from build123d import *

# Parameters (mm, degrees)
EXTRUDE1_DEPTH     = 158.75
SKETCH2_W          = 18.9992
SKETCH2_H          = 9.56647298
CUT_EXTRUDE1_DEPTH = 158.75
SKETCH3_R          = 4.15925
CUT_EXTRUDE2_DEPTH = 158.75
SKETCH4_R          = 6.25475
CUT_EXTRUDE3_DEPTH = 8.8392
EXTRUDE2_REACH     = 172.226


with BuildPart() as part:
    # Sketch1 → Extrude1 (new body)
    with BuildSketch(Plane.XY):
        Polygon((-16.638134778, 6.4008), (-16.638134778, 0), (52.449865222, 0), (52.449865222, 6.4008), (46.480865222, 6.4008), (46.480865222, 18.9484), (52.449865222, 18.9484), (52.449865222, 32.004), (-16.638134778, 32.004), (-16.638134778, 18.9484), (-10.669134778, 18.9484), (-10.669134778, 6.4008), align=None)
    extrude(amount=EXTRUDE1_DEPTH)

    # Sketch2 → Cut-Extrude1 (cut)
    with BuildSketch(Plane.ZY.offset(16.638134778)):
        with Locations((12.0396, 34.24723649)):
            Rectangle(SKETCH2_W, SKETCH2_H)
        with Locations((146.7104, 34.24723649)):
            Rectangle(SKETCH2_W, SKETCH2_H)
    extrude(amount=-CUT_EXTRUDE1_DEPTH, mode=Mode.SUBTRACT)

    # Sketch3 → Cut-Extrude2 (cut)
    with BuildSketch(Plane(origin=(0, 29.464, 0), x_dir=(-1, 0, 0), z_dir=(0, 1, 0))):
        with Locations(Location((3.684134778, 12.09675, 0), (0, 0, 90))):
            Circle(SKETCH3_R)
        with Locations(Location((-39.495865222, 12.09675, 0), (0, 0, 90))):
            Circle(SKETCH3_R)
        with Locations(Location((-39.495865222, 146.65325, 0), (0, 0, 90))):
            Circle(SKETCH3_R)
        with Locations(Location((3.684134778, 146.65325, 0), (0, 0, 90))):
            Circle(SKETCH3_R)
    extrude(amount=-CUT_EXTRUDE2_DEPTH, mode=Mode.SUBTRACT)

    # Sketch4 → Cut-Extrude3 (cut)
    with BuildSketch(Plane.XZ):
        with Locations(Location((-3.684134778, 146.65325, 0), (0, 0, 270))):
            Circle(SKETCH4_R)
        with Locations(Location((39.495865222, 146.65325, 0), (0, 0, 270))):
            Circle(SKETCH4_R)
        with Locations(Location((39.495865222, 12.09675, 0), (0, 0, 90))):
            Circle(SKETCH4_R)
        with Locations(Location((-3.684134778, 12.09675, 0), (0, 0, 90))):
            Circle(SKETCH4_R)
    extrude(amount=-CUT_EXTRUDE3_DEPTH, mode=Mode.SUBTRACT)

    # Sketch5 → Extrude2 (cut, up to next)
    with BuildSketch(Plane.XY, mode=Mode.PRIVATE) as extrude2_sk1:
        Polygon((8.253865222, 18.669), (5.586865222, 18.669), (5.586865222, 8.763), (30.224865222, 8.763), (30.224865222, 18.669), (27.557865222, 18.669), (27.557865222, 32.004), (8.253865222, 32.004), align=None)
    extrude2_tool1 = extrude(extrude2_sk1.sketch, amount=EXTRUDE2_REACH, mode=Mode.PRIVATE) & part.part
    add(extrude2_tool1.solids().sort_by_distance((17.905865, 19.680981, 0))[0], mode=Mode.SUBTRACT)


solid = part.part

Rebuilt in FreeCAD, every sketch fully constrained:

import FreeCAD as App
import Part
import Sketcher

V = App.Vector
Q = App.Units.Quantity

doc = App.newDocument("Part")
body = doc.addObject("PartDesign::Body", "Body")

sketch1 = doc.addObject("Sketcher::SketchObject", "Sketch")
body.addObject(sketch1)
sketch1.AttachmentSupport = (doc.XY_Plane, [""])
sketch1.MapMode = "FlatFace"
sketch1.addGeometry(Part.LineSegment(V(-17, 6, 0), V(-17, 0, 0)), False)
sketch1.addGeometry(Part.LineSegment(V(-17, 0, 0), V(52, 0, 0)), False)
sketch1.addGeometry(Part.LineSegment(V(52, 0, 0), V(52, 6, 0)), False)
sketch1.addGeometry(Part.LineSegment(V(52, 6, 0), V(46, 6, 0)), False)
sketch1.addGeometry(Part.LineSegment(V(46, 6, 0), V(46, 19, 0)), False)
sketch1.addGeometry(Part.LineSegment(V(46, 19, 0), V(52, 19, 0)), False)
sketch1.addGeometry(Part.LineSegment(V(52, 19, 0), V(52, 32, 0)), False)
sketch1.addGeometry(Part.LineSegment(V(52, 32, 0), V(-17, 32, 0)), False)
sketch1.addGeometry(Part.LineSegment(V(-17, 32, 0), V(-17, 19, 0)), False)
sketch1.addGeometry(Part.LineSegment(V(-17, 19, 0), V(-11, 19, 0)), False)
sketch1.addGeometry(Part.LineSegment(V(-11, 19, 0), V(-11, 6, 0)), False)
sketch1.addGeometry(Part.LineSegment(V(-11, 6, 0), V(-17, 6, 0)), False)
sketch1.addConstraint(Sketcher.Constraint("Coincident", 0, 2, 1, 1))
sketch1.addConstraint(Sketcher.Constraint("Coincident", 1, 2, 2, 1))
sketch1.addConstraint(Sketcher.Constraint("Coincident", 2, 2, 3, 1))
sketch1.addConstraint(Sketcher.Constraint("Coincident", 3, 2, 4, 1))
sketch1.addConstraint(Sketcher.Constraint("Coincident", 4, 2, 5, 1))
sketch1.addConstraint(Sketcher.Constraint("Coincident", 5, 2, 6, 1))
sketch1.addConstraint(Sketcher.Constraint("Coincident", 6, 2, 7, 1))
sketch1.addConstraint(Sketcher.Constraint("Coincident", 7, 2, 8, 1))
sketch1.addConstraint(Sketcher.Constraint("Coincident", 8, 2, 9, 1))
sketch1.addConstraint(Sketcher.Constraint("Coincident", 9, 2, 10, 1))
sketch1.addConstraint(Sketcher.Constraint("Coincident", 10, 2, 11, 1))
sketch1.addConstraint(Sketcher.Constraint("Coincident", 11, 2, 0, 1))
sketch1.addConstraint(Sketcher.Constraint("Vertical", 0))
sketch1.addConstraint(Sketcher.Constraint("Horizontal", 1))
sketch1.addConstraint(Sketcher.Constraint("Vertical", 2))
sketch1.addConstraint(Sketcher.Constraint("Horizontal", 3))
sketch1.addConstraint(Sketcher.Constraint("Vertical", 4))
sketch1.addConstraint(Sketcher.Constraint("Horizontal", 5))
sketch1.addConstraint(Sketcher.Constraint("Vertical", 6))
sketch1.addConstraint(Sketcher.Constraint("Horizontal", 7))
sketch1.addConstraint(Sketcher.Constraint("Vertical", 8))
sketch1.addConstraint(Sketcher.Constraint("Horizontal", 9))
sketch1.addConstraint(Sketcher.Constraint("Vertical", 10))
sketch1.addConstraint(Sketcher.Constraint("Horizontal", 11))
sketch1.addConstraint(Sketcher.Constraint("PointOnObject", 0, 2, -1))
sketch1.addConstraint(Sketcher.Constraint("Horizontal", 5, 2, 8, 2))
sketch1.addConstraint(Sketcher.Constraint("Horizontal", 3, 2, 10, 2))
sketch1.addConstraint(Sketcher.Constraint("Vertical", 2, 2, 5, 2))
sketch1.addConstraint(Sketcher.Constraint("Vertical", 0, 2, 7, 2))
sketch1.addConstraint(Sketcher.Constraint("Equal", 5, 9))
sketch1.addConstraint(Sketcher.Constraint("DistanceX", 1, 1, 1, 2, Q("2.72 in")))
sketch1.addConstraint(Sketcher.Constraint("DistanceX", 3, 2, 3, 1, Q("0.235 in")))
sketch1.addConstraint(Sketcher.Constraint("DistanceY", 0, 2, 0, 1, Q("0.252 in")))
sketch1.addConstraint(Sketcher.Constraint("DistanceY", 4, 1, 4, 2, Q("0.494 in")))
sketch1.addConstraint(Sketcher.Constraint("DistanceY", 6, 1, 6, 2, Q("0.514 in")))
sketch1.addConstraint(Sketcher.Constraint("DistanceX", 0, 2, -1, 1, 16.638135))
pad1 = doc.addObject("PartDesign::Pad", "Pad")
body.addObject(pad1)
pad1.Profile = sketch1
pad1.Length = Q("6.25 in")

sketch2 = doc.addObject("Sketcher::SketchObject", "Sketch001")
body.addObject(sketch2)
sketch2.AttachmentSupport = (doc.YZ_Plane, [""])
sketch2.MapMode = "FlatFace"
sketch2.AttachmentOffset = App.Placement(V(0, 0, -16.638135), App.Rotation())
sketch2.addGeometry(Part.LineSegment(V(39, 3, 0), V(29, 3, 0)), False)
sketch2.addGeometry(Part.LineSegment(V(29, 3, 0), V(29, 22, 0)), False)
sketch2.addGeometry(Part.LineSegment(V(29, 22, 0), V(39, 22, 0)), False)
sketch2.addGeometry(Part.LineSegment(V(39, 22, 0), V(39, 3, 0)), False)
sketch2.addGeometry(Part.LineSegment(V(39, 137, 0), V(29, 137, 0)), False)
sketch2.addGeometry(Part.LineSegment(V(29, 137, 0), V(29, 156, 0)), False)
sketch2.addGeometry(Part.LineSegment(V(29, 156, 0), V(39, 156, 0)), False)
sketch2.addGeometry(Part.LineSegment(V(39, 156, 0), V(39, 137, 0)), False)
sketch2.addConstraint(Sketcher.Constraint("Coincident", 0, 2, 1, 1))
sketch2.addConstraint(Sketcher.Constraint("Coincident", 1, 2, 2, 1))
sketch2.addConstraint(Sketcher.Constraint("Coincident", 2, 2, 3, 1))
sketch2.addConstraint(Sketcher.Constraint("Coincident", 3, 2, 0, 1))
sketch2.addConstraint(Sketcher.Constraint("Coincident", 4, 2, 5, 1))
sketch2.addConstraint(Sketcher.Constraint("Coincident", 5, 2, 6, 1))
sketch2.addConstraint(Sketcher.Constraint("Coincident", 6, 2, 7, 1))
sketch2.addConstraint(Sketcher.Constraint("Coincident", 7, 2, 4, 1))
sketch2.addConstraint(Sketcher.Constraint("Horizontal", 0))
sketch2.addConstraint(Sketcher.Constraint("Vertical", 1))
sketch2.addConstraint(Sketcher.Constraint("Horizontal", 2))
sketch2.addConstraint(Sketcher.Constraint("Vertical", 3))
sketch2.addConstraint(Sketcher.Constraint("Horizontal", 4))
sketch2.addConstraint(Sketcher.Constraint("Vertical", 5))
sketch2.addConstraint(Sketcher.Constraint("Horizontal", 6))
sketch2.addConstraint(Sketcher.Constraint("Vertical", 7))
sketch2.addConstraint(Sketcher.Constraint("Vertical", 1, 2, 4, 2))
sketch2.addConstraint(Sketcher.Constraint("Vertical", 3, 2, 6, 2))
sketch2.addConstraint(Sketcher.Constraint("Equal", 3, 5))
sketch2.addConstraint(Sketcher.Constraint("DistanceY", -1, 1, 0, 2, Q("0.1 in")))
sketch2.addConstraint(Sketcher.Constraint("DistanceY", 1, 1, 1, 2, Q("0.748 in")))
sketch2.addConstraint(Sketcher.Constraint("DistanceX", -1, 1, 0, 2, Q("1.16 in")))
sketch2.addConstraint(Sketcher.Constraint("DistanceY", -1, 1, 5, 2, Q("6.15 in")))
sketch2.addConstraint(Sketcher.Constraint("DistanceX", 0, 2, 0, 1, 9.566473))
pocket1 = doc.addObject("PartDesign::Pocket", "Pocket")
body.addObject(pocket1)
pocket1.Profile = sketch2
pocket1.Length = Q("6.25 in")
pocket1.Reversed = True

sketch3 = doc.addObject("Sketcher::SketchObject", "Sketch002")
body.addObject(sketch3)
sketch3.AttachmentSupport = (doc.XZ_Plane, [""])
sketch3.MapMode = "FlatFace"
sketch3.AttachmentOffset = App.Placement(V(0, 0, -1.16 * 25.4), App.Rotation())
sketch3.addGeometry(Part.Circle(V(-3.7, 12.1, 0), V(0, 0, 1), 4.2), False)
sketch3.addGeometry(Part.Circle(V(39.5, 12.1, 0), V(0, 0, 1), 4.2), False)
sketch3.addGeometry(Part.Circle(V(39.5, 146.7, 0), V(0, 0, 1), 4.2), False)
sketch3.addGeometry(Part.Circle(V(-3.7, 146.7, 0), V(0, 0, 1), 4.2), False)
sketch3.addConstraint(Sketcher.Constraint("Equal", 0, 1))
sketch3.addConstraint(Sketcher.Constraint("Equal", 1, 2))
sketch3.addConstraint(Sketcher.Constraint("Equal", 2, 3))
sketch3.addConstraint(Sketcher.Constraint("Horizontal", 0, 3, 1, 3))
sketch3.addConstraint(Sketcher.Constraint("Horizontal", 2, 3, 3, 3))
sketch3.addConstraint(Sketcher.Constraint("Vertical", 1, 3, 2, 3))
sketch3.addConstraint(Sketcher.Constraint("Vertical", 0, 3, 3, 3))
sketch3.addConstraint(Sketcher.Constraint("Diameter", 0, Q("0.3275 in")))
sketch3.addConstraint(Sketcher.Constraint("DistanceX", 0, 3, 1, 3, Q("1.7 in")))
sketch3.addConstraint(Sketcher.Constraint("DistanceY", 1, 3, 2, 3, Q("5.2975 in")))
sketch3.addConstraint(Sketcher.Constraint("DistanceY", -1, 1, 0, 3, 12.09675))
sketch3.addConstraint(Sketcher.Constraint("DistanceX", 0, 3, -1, 1, 3.684135))
pocket2 = doc.addObject("PartDesign::Pocket", "Pocket001")
body.addObject(pocket2)
pocket2.Profile = sketch3
pocket2.Length = Q("6.25 in")
pocket2.Reversed = True

sketch4 = doc.addObject("Sketcher::SketchObject", "Sketch003")
body.addObject(sketch4)
sketch4.AttachmentSupport = (doc.XZ_Plane, [""])
sketch4.MapMode = "FlatFace"
sketch4.addGeometry(Part.Circle(V(-4, 147, 0), V(0, 0, 1), 6), False)
sketch4.addGeometry(Part.Circle(V(39, 147, 0), V(0, 0, 1), 6), False)
sketch4.addGeometry(Part.Circle(V(39, 12, 0), V(0, 0, 1), 6), False)
sketch4.addGeometry(Part.Circle(V(-4, 12, 0), V(0, 0, 1), 6), False)
sketch4.addConstraint(Sketcher.Constraint("Equal", 0, 1))
sketch4.addConstraint(Sketcher.Constraint("Equal", 1, 2))
sketch4.addConstraint(Sketcher.Constraint("Equal", 2, 3))
sketch4.addConstraint(Sketcher.Constraint("Horizontal", 0, 3, 1, 3))
sketch4.addConstraint(Sketcher.Constraint("Horizontal", 2, 3, 3, 3))
sketch4.addConstraint(Sketcher.Constraint("Vertical", 1, 3, 2, 3))
sketch4.addConstraint(Sketcher.Constraint("Vertical", 0, 3, 3, 3))
sketch4.addConstraint(Sketcher.Constraint("Diameter", 0, Q("0.4925 in")))
sketch4.addConstraint(Sketcher.Constraint("DistanceX", 0, 3, 1, 3, Q("1.7 in")))
sketch4.addConstraint(Sketcher.Constraint("DistanceY", 2, 3, 1, 3, Q("5.2975 in")))
sketch4.addConstraint(Sketcher.Constraint("DistanceY", -1, 1, 0, 3, 146.65325))
sketch4.addConstraint(Sketcher.Constraint("DistanceX", 0, 3, -1, 1, 3.684135))
pocket3 = doc.addObject("PartDesign::Pocket", "Pocket002")
body.addObject(pocket3)
pocket3.Profile = sketch4
pocket3.Length = Q("0.348 in")

sketch5 = doc.addObject("Sketcher::SketchObject", "Sketch004")
body.addObject(sketch5)
sketch5.AttachmentSupport = (doc.XY_Plane, [""])
sketch5.MapMode = "FlatFace"
sketch5.addGeometry(Part.LineSegment(V(8.3, 18.7, 0), V(5.6, 18.7, 0)), False)
sketch5.addGeometry(Part.LineSegment(V(5.6, 18.7, 0), V(5.6, 8.8, 0)), False)
sketch5.addGeometry(Part.LineSegment(V(5.6, 8.8, 0), V(30.2, 8.8, 0)), False)
sketch5.addGeometry(Part.LineSegment(V(30.2, 8.8, 0), V(30.2, 18.7, 0)), False)
sketch5.addGeometry(Part.LineSegment(V(30.2, 18.7, 0), V(27.6, 18.7, 0)), False)
sketch5.addGeometry(Part.LineSegment(V(27.6, 18.7, 0), V(27.6, 32, 0)), False)
sketch5.addGeometry(Part.LineSegment(V(27.6, 32, 0), V(8.3, 32, 0)), False)
sketch5.addGeometry(Part.LineSegment(V(8.3, 32, 0), V(8.3, 18.7, 0)), False)
sketch5.addConstraint(Sketcher.Constraint("Coincident", 0, 2, 1, 1))
sketch5.addConstraint(Sketcher.Constraint("Coincident", 1, 2, 2, 1))
sketch5.addConstraint(Sketcher.Constraint("Coincident", 2, 2, 3, 1))
sketch5.addConstraint(Sketcher.Constraint("Coincident", 3, 2, 4, 1))
sketch5.addConstraint(Sketcher.Constraint("Coincident", 4, 2, 5, 1))
sketch5.addConstraint(Sketcher.Constraint("Coincident", 5, 2, 6, 1))
sketch5.addConstraint(Sketcher.Constraint("Coincident", 6, 2, 7, 1))
sketch5.addConstraint(Sketcher.Constraint("Coincident", 7, 2, 0, 1))
sketch5.addConstraint(Sketcher.Constraint("Horizontal", 0))
sketch5.addConstraint(Sketcher.Constraint("Vertical", 1))
sketch5.addConstraint(Sketcher.Constraint("Horizontal", 2))
sketch5.addConstraint(Sketcher.Constraint("Vertical", 3))
sketch5.addConstraint(Sketcher.Constraint("Horizontal", 4))
sketch5.addConstraint(Sketcher.Constraint("Vertical", 5))
sketch5.addConstraint(Sketcher.Constraint("Horizontal", 6))
sketch5.addConstraint(Sketcher.Constraint("Vertical", 7))
sketch5.addConstraint(Sketcher.Constraint("Horizontal", 0, 2, 3, 2))
sketch5.addConstraint(Sketcher.Constraint("Equal", 0, 4))
sketch5.addConstraint(Sketcher.Constraint("DistanceX", 2, 1, 2, 2, Q("0.97 in")))
sketch5.addConstraint(Sketcher.Constraint("DistanceX", 6, 2, 6, 1, Q("0.76 in")))
sketch5.addConstraint(Sketcher.Constraint("DistanceY", 1, 2, 1, 1, Q("0.39 in")))
sketch5.addConstraint(Sketcher.Constraint("DistanceY", 5, 1, 5, 2, Q("0.525 in")))
sketch5.addConstraint(Sketcher.Constraint("DistanceY", -1, 1, 5, 2, Q("1.26 in")))
sketch5.addConstraint(Sketcher.Constraint("DistanceX", -1, 1, 0, 2, 5.586865))
pocket4 = doc.addObject("PartDesign::Pocket", "Pocket003")
body.addObject(pocket4)
pocket4.Profile = sketch5
pocket4.Type = "UpToFirst"
pocket4.Reversed = True

doc.recompute()
